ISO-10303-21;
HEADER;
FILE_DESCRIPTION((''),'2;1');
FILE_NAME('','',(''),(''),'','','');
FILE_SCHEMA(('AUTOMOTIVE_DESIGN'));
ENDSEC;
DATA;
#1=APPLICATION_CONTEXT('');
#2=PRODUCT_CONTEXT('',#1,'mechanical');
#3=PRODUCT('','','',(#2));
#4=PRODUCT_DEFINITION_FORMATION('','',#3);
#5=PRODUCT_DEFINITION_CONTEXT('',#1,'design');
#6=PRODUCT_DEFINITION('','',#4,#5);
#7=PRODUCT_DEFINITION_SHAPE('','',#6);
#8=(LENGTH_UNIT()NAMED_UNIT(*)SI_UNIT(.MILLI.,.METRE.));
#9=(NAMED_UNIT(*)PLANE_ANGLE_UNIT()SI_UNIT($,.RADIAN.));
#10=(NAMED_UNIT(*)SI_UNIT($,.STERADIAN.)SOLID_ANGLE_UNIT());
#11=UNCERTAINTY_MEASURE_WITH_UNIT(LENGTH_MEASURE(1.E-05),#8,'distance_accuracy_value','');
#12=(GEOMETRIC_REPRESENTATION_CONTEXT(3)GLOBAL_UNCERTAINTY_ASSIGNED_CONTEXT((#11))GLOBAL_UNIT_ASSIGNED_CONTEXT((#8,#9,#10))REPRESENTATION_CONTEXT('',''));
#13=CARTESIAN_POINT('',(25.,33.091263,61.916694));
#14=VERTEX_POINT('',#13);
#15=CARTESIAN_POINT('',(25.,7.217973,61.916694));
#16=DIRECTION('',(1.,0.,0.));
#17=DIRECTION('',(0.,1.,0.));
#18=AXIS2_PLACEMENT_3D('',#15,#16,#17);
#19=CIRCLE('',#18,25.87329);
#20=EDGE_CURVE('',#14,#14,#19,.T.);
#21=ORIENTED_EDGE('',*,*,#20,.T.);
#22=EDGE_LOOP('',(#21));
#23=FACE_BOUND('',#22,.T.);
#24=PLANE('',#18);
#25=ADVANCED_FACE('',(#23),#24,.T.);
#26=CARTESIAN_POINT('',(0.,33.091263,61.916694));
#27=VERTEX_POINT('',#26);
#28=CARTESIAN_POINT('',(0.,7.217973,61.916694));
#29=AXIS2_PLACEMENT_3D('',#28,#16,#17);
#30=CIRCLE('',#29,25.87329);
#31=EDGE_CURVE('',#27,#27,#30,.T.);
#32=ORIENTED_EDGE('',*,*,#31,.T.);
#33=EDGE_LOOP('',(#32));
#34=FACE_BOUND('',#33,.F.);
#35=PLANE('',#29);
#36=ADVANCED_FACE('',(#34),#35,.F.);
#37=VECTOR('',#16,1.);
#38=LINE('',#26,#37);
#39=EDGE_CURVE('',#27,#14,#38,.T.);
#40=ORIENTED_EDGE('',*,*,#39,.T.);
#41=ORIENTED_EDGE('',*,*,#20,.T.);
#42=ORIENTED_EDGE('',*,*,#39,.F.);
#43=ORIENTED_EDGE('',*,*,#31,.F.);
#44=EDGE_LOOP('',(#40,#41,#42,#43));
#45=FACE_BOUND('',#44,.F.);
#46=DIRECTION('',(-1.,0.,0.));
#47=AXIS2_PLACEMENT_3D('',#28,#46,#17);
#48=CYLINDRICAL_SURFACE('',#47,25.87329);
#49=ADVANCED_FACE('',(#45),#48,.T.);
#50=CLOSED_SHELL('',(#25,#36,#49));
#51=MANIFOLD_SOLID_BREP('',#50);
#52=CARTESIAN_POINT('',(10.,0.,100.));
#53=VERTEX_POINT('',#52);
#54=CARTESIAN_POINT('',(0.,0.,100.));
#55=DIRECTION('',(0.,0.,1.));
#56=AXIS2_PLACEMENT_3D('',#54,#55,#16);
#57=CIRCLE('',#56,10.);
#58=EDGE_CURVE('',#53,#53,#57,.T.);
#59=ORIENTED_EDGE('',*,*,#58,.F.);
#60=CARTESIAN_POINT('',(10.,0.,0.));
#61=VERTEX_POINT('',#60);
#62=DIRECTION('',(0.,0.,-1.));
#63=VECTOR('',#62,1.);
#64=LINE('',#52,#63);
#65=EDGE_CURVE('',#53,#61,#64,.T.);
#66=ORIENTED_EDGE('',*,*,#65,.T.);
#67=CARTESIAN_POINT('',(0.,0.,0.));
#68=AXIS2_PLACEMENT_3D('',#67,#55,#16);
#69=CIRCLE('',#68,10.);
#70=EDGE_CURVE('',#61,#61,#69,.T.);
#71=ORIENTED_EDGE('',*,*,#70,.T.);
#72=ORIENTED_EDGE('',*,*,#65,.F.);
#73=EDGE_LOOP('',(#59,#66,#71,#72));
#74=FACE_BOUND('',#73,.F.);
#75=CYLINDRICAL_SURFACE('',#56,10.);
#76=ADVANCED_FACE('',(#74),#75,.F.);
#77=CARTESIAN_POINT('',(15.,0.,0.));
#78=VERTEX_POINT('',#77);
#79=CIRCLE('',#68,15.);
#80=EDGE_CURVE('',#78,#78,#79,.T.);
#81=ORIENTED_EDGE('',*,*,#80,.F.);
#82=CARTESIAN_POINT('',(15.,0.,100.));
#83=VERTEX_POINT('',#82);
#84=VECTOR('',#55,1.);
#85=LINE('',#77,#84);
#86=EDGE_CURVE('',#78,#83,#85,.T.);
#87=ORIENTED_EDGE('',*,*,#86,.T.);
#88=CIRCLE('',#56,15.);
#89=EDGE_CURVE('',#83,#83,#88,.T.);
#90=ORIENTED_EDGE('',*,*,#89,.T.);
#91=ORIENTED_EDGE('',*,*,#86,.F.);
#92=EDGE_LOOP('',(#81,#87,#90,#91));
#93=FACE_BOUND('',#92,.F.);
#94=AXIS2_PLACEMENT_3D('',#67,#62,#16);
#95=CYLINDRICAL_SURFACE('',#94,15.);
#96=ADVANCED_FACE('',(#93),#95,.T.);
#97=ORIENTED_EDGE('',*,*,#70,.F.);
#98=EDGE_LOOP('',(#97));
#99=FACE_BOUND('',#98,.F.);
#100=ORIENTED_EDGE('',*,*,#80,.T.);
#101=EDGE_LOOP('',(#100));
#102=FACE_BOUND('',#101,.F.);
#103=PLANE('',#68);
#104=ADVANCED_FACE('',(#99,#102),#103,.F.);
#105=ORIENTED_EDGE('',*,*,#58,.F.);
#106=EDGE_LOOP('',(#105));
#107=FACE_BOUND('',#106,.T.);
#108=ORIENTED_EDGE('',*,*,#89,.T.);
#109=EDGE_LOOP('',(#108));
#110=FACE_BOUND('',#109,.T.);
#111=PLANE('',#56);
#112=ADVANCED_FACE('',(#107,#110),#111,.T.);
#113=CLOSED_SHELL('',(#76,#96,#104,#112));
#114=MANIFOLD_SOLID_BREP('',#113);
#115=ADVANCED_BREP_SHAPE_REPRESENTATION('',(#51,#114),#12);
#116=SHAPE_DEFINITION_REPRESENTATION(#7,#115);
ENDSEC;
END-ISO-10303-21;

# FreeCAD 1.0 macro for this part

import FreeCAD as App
import Part
import Sketcher

V = App.Vector

doc = App.newDocument("Part")
body = doc.addObject("PartDesign::Body", "Body")

# Sketch on XY plane
sketch1 = body.newObject("Sketcher::SketchObject", "Sketch")
sketch1.AttachmentSupport = (doc.getObject("XY_Plane"), [""])
sketch1.MapMode = "FlatFace"
sketch1.addGeometry(Part.Circle(V(0, 0, 0), V(0, 0, 1), 15), False)
sketch1.addConstraint(Sketcher.Constraint("Coincident", 0, 3, -1, 1))
sketch1.addConstraint(Sketcher.Constraint("Diameter", 0, 30.0))
pad1 = body.newObject("PartDesign::Pad", "Pad")
pad1.Profile = sketch1
pad1.Length = 100

# Sketch on XY plane
sketch2 = body.newObject("Sketcher::SketchObject", "Sketch001")
sketch2.AttachmentSupport = (doc.getObject("XY_Plane"), [""])
sketch2.MapMode = "FlatFace"
sketch2.AttachmentOffset = App.Placement(V(0, 0, 100), App.Rotation())
sketch2.addGeometry(Part.Circle(V(0, 0, 0), V(0, 0, 1), 10), False)
sketch2.addConstraint(Sketcher.Constraint("Coincident", 0, 3, -1, 1))
sketch2.addConstraint(Sketcher.Constraint("Diameter", 0, 20.0))
pocket1 = body.newObject("PartDesign::Pocket", "Pocket")
pocket1.Profile = sketch2
pocket1.Type = "ThroughAll"
body2 = doc.addObject("PartDesign::Body", "Body001")

# Sketch on YZ plane
sketch3 = body2.newObject("Sketcher::SketchObject", "Sketch002")
sketch3.AttachmentSupport = (doc.getObject("YZ_Plane001"), [""])
sketch3.MapMode = "FlatFace"
sketch3.addGeometry(Part.Circle(V(7, 62, 0), V(0, 0, 1), 26), False)
sketch3.addConstraint(Sketcher.Constraint("Diameter", 0, 51.74658))
sketch3.addConstraint(Sketcher.Constraint("DistanceX", -1, 1, 0, 3, 7.217973))
sketch3.addConstraint(Sketcher.Constraint("DistanceY", -1, 1, 0, 3, 61.916694))
pad2 = body2.newObject("PartDesign::Pad", "Pad001")
pad2.Profile = sketch3
pad2.Length = 25

doc.recompute()
